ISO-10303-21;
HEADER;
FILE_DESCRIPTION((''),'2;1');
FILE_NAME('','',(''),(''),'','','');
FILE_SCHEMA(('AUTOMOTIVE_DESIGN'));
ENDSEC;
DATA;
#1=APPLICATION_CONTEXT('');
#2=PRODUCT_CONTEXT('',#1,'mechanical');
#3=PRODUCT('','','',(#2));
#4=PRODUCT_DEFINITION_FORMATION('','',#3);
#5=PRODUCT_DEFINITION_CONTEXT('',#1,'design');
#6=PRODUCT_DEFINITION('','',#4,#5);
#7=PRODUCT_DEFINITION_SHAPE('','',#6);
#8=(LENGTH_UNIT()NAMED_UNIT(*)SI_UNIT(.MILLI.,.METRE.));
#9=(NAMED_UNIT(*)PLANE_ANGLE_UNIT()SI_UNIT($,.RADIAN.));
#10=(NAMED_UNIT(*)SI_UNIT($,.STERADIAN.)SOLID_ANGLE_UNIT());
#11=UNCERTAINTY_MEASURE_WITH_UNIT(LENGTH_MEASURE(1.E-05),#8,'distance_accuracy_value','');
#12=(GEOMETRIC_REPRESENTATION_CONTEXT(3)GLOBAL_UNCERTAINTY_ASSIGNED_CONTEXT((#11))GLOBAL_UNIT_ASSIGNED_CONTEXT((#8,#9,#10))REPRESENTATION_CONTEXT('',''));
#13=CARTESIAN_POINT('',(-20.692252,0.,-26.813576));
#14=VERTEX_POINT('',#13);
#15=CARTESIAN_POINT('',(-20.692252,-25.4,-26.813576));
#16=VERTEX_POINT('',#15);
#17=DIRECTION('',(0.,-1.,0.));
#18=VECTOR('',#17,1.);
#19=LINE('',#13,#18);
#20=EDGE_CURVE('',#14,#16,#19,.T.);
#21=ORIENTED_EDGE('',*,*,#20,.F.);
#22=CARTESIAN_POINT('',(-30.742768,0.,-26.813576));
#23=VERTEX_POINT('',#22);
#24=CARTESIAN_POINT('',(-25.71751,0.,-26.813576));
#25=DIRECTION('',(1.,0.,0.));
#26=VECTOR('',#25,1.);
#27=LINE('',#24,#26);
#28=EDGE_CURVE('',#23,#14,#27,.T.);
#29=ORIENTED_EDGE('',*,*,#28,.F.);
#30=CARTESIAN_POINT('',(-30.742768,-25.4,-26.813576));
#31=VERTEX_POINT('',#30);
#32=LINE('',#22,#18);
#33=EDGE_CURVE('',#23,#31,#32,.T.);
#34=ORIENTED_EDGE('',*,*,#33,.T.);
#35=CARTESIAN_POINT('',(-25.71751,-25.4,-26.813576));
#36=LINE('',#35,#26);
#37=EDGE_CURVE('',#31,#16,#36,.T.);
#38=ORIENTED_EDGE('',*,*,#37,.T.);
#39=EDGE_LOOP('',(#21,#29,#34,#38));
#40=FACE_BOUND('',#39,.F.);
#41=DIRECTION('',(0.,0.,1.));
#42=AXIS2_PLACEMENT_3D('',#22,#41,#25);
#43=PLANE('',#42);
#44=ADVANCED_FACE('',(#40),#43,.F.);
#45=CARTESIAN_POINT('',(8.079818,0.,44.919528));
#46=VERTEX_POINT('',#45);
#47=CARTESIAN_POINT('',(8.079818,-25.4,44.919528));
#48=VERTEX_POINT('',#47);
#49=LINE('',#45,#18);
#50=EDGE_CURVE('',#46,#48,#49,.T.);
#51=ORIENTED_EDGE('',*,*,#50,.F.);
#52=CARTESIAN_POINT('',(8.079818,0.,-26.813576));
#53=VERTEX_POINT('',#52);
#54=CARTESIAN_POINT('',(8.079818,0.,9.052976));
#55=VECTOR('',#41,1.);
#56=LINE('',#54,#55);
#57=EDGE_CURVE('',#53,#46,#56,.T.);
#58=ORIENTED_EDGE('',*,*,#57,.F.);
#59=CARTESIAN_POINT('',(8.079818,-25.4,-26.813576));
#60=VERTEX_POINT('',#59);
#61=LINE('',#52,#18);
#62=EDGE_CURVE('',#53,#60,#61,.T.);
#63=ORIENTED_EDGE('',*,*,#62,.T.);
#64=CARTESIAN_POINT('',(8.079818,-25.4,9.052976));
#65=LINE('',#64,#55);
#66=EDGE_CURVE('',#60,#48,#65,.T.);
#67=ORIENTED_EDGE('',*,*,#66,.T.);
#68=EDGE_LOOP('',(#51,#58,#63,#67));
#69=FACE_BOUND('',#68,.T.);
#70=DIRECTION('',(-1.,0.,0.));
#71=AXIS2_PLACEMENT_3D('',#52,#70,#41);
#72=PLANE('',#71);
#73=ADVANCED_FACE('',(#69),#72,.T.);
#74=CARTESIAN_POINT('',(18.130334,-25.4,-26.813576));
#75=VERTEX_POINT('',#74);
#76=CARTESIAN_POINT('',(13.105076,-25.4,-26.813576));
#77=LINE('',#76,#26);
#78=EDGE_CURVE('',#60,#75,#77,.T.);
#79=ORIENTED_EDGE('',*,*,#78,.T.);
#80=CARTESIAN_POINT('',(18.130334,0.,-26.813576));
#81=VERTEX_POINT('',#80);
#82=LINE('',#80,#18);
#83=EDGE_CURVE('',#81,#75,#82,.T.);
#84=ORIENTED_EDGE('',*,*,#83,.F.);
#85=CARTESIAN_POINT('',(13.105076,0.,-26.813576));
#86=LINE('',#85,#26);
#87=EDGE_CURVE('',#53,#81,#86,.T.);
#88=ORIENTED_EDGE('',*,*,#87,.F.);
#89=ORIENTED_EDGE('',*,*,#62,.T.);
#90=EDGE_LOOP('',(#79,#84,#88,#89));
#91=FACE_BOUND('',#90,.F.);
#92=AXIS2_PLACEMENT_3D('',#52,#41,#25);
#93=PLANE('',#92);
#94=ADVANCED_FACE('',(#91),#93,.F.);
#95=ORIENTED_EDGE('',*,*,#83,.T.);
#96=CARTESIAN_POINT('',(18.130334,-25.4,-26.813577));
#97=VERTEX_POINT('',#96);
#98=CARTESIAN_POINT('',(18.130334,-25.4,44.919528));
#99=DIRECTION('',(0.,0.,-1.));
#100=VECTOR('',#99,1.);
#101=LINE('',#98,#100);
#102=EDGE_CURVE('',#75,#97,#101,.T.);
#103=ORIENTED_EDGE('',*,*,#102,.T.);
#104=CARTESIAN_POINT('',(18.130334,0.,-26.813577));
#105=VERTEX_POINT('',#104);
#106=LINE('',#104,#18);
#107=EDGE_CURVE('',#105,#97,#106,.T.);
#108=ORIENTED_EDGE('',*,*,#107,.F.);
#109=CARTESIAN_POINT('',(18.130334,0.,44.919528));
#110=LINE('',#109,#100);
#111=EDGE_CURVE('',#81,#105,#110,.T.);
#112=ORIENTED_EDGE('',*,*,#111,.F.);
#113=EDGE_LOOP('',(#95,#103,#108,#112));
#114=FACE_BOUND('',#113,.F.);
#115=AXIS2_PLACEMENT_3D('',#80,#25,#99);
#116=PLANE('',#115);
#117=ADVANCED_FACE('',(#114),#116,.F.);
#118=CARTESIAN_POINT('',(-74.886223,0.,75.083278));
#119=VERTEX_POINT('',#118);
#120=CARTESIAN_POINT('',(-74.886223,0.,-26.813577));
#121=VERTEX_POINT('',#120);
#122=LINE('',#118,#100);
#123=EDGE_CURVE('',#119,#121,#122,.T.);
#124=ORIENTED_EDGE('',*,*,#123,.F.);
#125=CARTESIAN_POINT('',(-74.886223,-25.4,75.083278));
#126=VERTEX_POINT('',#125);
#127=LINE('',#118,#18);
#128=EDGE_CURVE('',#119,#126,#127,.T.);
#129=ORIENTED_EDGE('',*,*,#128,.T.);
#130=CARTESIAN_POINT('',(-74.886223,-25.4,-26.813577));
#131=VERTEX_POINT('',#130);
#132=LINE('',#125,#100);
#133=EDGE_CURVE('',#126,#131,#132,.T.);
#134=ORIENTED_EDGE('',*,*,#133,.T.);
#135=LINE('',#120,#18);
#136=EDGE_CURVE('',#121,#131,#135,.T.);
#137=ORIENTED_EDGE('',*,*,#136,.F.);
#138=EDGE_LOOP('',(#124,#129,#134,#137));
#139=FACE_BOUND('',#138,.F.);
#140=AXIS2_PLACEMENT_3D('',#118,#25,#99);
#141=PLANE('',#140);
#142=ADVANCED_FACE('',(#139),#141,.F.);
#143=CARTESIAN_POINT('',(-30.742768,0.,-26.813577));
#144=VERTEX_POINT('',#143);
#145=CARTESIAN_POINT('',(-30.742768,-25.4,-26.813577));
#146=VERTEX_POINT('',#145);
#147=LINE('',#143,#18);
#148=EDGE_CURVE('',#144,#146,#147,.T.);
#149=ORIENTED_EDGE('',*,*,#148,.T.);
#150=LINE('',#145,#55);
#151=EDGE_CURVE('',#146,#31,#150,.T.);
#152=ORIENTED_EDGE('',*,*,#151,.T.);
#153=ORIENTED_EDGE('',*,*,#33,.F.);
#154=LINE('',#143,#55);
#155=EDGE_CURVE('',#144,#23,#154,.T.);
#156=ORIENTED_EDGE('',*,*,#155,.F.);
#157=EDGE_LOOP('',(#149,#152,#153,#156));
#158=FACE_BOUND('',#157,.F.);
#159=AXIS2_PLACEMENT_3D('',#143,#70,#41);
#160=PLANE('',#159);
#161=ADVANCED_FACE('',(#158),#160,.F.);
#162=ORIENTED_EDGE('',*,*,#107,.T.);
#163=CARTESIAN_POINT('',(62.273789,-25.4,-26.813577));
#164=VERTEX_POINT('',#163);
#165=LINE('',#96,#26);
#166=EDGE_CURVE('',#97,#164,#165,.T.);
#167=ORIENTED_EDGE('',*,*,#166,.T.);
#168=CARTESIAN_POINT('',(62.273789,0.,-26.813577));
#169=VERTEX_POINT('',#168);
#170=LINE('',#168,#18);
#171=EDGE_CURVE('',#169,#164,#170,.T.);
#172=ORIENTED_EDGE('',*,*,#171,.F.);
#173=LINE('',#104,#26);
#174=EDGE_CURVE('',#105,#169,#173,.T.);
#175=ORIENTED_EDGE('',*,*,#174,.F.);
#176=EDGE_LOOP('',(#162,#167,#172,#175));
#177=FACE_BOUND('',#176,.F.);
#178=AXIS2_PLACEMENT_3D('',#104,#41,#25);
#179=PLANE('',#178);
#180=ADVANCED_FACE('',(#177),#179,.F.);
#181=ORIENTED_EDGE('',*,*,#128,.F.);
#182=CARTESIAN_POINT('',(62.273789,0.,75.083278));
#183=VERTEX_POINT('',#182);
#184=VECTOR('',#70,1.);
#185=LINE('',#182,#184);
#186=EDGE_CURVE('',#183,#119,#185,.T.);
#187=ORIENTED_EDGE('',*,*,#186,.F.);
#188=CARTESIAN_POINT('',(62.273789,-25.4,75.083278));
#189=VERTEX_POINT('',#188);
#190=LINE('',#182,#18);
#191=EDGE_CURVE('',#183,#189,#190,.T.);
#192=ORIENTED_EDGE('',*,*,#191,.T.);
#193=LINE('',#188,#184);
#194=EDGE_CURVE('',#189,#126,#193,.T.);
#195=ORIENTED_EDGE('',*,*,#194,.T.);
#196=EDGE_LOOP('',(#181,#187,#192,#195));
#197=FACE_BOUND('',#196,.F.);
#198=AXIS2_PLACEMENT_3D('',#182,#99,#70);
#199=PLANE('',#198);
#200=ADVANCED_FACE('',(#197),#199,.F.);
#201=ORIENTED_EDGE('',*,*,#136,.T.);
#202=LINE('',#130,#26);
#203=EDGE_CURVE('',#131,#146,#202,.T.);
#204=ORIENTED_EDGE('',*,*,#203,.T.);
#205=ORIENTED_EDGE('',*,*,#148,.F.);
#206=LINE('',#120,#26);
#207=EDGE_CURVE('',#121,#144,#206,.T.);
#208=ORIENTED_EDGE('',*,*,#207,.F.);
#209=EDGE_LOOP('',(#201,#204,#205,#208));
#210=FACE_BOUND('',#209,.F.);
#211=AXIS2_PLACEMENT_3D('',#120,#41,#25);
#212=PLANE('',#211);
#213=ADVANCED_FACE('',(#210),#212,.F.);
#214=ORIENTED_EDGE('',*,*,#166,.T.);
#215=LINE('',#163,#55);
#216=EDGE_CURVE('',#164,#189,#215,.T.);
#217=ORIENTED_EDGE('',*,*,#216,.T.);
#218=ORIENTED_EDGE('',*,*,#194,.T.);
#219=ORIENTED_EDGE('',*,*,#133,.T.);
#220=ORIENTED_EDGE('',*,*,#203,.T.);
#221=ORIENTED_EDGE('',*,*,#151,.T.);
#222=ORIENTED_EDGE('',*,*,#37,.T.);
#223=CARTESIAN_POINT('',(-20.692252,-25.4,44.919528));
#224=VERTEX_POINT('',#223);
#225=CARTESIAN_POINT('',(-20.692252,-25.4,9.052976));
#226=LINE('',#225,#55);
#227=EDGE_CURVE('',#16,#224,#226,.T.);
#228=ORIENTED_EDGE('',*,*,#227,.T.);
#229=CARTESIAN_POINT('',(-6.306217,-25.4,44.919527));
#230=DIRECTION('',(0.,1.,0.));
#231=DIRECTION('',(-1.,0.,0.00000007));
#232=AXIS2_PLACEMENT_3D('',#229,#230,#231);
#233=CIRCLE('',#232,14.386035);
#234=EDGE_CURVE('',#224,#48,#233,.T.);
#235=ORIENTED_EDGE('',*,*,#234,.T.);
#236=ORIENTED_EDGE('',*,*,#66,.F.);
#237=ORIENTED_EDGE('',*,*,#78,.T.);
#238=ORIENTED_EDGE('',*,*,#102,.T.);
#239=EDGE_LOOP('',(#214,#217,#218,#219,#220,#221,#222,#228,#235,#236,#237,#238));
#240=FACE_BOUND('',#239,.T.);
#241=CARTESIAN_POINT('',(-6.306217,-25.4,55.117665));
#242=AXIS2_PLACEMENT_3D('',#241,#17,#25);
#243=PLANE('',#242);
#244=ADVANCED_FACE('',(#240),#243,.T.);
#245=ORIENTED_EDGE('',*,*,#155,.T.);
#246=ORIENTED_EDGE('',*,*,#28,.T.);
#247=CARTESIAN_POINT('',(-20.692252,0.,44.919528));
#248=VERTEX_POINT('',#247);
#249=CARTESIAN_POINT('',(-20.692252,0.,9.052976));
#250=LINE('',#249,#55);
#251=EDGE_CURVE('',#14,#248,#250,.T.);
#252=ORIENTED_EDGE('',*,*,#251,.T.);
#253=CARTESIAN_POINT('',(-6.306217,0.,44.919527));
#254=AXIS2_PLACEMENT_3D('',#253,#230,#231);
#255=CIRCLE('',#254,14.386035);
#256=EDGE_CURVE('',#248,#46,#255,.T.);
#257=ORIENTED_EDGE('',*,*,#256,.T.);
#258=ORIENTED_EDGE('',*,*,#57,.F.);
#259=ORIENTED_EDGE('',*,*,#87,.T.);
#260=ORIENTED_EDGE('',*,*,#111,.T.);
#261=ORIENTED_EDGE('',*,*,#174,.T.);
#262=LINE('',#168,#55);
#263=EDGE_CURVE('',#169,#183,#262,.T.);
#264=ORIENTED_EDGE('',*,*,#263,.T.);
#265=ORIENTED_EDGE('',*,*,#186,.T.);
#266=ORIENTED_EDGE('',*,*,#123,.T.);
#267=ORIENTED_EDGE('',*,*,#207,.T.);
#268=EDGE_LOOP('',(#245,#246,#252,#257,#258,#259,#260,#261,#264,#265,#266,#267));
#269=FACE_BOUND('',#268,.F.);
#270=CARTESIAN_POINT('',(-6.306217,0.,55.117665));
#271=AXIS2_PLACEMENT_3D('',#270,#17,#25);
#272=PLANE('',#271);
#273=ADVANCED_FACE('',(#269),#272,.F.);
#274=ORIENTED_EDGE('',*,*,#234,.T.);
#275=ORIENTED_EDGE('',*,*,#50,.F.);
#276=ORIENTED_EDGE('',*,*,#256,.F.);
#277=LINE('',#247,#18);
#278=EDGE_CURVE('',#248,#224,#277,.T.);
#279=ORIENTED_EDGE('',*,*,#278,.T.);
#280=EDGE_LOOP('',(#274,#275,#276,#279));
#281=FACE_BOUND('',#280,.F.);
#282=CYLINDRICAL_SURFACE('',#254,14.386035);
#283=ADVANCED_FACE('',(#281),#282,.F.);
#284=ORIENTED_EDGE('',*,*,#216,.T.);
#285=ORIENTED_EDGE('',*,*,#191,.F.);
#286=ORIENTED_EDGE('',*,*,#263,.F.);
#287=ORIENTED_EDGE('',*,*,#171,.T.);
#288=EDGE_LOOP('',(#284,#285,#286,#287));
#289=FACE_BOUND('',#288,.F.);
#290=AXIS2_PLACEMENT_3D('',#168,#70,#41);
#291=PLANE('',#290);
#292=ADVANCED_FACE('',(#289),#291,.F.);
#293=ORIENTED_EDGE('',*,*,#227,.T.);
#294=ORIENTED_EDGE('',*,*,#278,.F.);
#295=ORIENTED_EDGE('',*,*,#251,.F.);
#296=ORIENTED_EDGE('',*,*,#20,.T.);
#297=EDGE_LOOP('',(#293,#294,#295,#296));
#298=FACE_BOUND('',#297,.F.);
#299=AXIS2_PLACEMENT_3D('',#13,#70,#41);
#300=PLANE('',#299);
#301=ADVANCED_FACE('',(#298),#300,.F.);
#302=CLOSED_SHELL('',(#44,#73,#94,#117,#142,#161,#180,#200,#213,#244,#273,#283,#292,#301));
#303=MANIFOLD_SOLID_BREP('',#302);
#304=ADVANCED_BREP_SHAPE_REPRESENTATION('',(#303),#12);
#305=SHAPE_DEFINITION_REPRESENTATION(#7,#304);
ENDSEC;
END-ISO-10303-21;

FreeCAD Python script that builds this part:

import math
import FreeCAD as App
import Part
import Sketcher
from FreeCAD import Vector
Q = App.Units.Quantity

doc = App.newDocument("Part")
body = doc.addObject("PartDesign::Body", "Body")

# Sketch on XZ plane
sketch1 = doc.addObject("Sketcher::SketchObject", "Sketch")
body.addObject(sketch1)
sketch1.AttachmentSupport = (doc.XZ_Plane, [""])
sketch1.MapMode = "FlatFace"
sketch1.addGeometry(Part.LineSegment(Vector(-30.742768, -26.813576, 0), Vector(-20.692252, -26.813576, 0)), False)
sketch1.addGeometry(Part.LineSegment(Vector(-20.692252, -26.813576, 0), Vector(-20.692252, 44.919528, 0)), False)
sketch1.addGeometry(Part.ArcOfCircle(Part.Circle(Vector(-6.306217, 44.919527, 0), Vector(0, 0, 1), 14.386035), math.radians(0.000004), math.radians(179.999996)), False)
sketch1.addGeometry(Part.LineSegment(Vector(8.079818, 44.919528, 0), Vector(8.079818, -26.813576, 0)), False)
sketch1.addGeometry(Part.LineSegment(Vector(8.079818, -26.813576, 0), Vector(18.130334, -26.813576, 0)), False)
sketch1.addGeometry(Part.LineSegment(Vector(18.130334, -26.813577, 0), Vector(18.130334, -26.813576, 0)), False)
sketch1.addGeometry(Part.LineSegment(Vector(18.130334, -26.813577, 0), Vector(62.273789, -26.813577, 0)), False)
sketch1.addGeometry(Part.LineSegment(Vector(62.273789, -26.813577, 0), Vector(62.273789, 75.083278, 0)), False)
sketch1.addGeometry(Part.LineSegment(Vector(62.273789, 75.083278, 0), Vector(-74.886223, 75.083278, 0)), False)
sketch1.addGeometry(Part.LineSegment(Vector(-74.886223, 75.083278, 0), Vector(-74.886223, -26.813577, 0)), False)
sketch1.addGeometry(Part.LineSegment(Vector(-74.886223, -26.813577, 0), Vector(-30.742768, -26.813577, 0)), False)
sketch1.addGeometry(Part.LineSegment(Vector(-30.742768, -26.813576, 0), Vector(-30.742768, -26.813577, 0)), False)
sketch1.addConstraint(Sketcher.Constraint("Coincident", 0, 2, 1, 1))
sketch1.addConstraint(Sketcher.Constraint("Tangent", 1, 2, 2, 2))
sketch1.addConstraint(Sketcher.Constraint("Tangent", 2, 1, 3, 1))
sketch1.addConstraint(Sketcher.Constraint("Coincident", 3, 2, 4, 1))
sketch1.addConstraint(Sketcher.Constraint("Coincident", 4, 2, 5, 1))
sketch1.addConstraint(Sketcher.Constraint("Coincident", 5, 2, 6, 1))
sketch1.addConstraint(Sketcher.Constraint("Coincident", 6, 2, 7, 1))
sketch1.addConstraint(Sketcher.Constraint("Coincident", 7, 2, 8, 1))
sketch1.addConstraint(Sketcher.Constraint("Coincident", 8, 2, 9, 1))
sketch1.addConstraint(Sketcher.Constraint("Coincident", 9, 2, 10, 1))
sketch1.addConstraint(Sketcher.Constraint("Coincident", 10, 2, 11, 1))
sketch1.addConstraint(Sketcher.Constraint("Coincident", 11, 2, 0, 1))
sketch1.addConstraint(Sketcher.Constraint("Horizontal", 0))
sketch1.addConstraint(Sketcher.Constraint("Vertical", 1))
sketch1.addConstraint(Sketcher.Constraint("Vertical", 3))
sketch1.addConstraint(Sketcher.Constraint("Horizontal", 4))
sketch1.addConstraint(Sketcher.Constraint("Horizontal", 5))
sketch1.addConstraint(Sketcher.Constraint("Horizontal", 6))
sketch1.addConstraint(Sketcher.Constraint("Vertical", 7))
sketch1.addConstraint(Sketcher.Constraint("Horizontal", 8))
sketch1.addConstraint(Sketcher.Constraint("Vertical", 9))
sketch1.addConstraint(Sketcher.Constraint("Horizontal", 10))
sketch1.addConstraint(Sketcher.Constraint("Horizontal", 11))
sketch1.addConstraint(Sketcher.Constraint("Horizontal", 0, 2, 3, 2))
sketch1.addConstraint(Sketcher.Constraint("Equal", 0, 4))
sketch1.addConstraint(Sketcher.Constraint("Equal", 6, 10))
sketch1.addConstraint(Sketcher.Constraint("Radius", 2, Q("14.386035 mm")))
sketch1.addConstraint(Sketcher.Constraint("DistanceX", 8, 2, 8, 1, Q("137.160012 mm")))
sketch1.addConstraint(Sketcher.Constraint("DistanceX", 0, 1, 0, 2, Q("10.050516 mm")))
sketch1.addConstraint(Sketcher.Constraint("DistanceX", 6, 1, 6, 2, Q("44.143455 mm")))
sketch1.addConstraint(Sketcher.Constraint("DistanceY", 1, 1, 1, 2, Q("71.733104 mm")))
sketch1.addConstraint(Sketcher.Constraint("DistanceY", 7, 1, 7, 2, Q("101.896855 mm")))
sketch1.addConstraint(Sketcher.Constraint("DistanceX", 0, 2, -1, 1, Q("20.692252 mm")))
sketch1.addConstraint(Sketcher.Constraint("DistanceX", -1, 1, 6, 2, Q("62.273789 mm")))
sketch1.addConstraint(Sketcher.Constraint("DistanceY", -1, 1, 7, 2, Q("75.083278 mm")))
pad1 = doc.addObject("PartDesign::Pad", "Pad")
body.addObject(pad1)
pad1.Profile = sketch1
pad1.Length = Q("1 in")

doc.recompute()
